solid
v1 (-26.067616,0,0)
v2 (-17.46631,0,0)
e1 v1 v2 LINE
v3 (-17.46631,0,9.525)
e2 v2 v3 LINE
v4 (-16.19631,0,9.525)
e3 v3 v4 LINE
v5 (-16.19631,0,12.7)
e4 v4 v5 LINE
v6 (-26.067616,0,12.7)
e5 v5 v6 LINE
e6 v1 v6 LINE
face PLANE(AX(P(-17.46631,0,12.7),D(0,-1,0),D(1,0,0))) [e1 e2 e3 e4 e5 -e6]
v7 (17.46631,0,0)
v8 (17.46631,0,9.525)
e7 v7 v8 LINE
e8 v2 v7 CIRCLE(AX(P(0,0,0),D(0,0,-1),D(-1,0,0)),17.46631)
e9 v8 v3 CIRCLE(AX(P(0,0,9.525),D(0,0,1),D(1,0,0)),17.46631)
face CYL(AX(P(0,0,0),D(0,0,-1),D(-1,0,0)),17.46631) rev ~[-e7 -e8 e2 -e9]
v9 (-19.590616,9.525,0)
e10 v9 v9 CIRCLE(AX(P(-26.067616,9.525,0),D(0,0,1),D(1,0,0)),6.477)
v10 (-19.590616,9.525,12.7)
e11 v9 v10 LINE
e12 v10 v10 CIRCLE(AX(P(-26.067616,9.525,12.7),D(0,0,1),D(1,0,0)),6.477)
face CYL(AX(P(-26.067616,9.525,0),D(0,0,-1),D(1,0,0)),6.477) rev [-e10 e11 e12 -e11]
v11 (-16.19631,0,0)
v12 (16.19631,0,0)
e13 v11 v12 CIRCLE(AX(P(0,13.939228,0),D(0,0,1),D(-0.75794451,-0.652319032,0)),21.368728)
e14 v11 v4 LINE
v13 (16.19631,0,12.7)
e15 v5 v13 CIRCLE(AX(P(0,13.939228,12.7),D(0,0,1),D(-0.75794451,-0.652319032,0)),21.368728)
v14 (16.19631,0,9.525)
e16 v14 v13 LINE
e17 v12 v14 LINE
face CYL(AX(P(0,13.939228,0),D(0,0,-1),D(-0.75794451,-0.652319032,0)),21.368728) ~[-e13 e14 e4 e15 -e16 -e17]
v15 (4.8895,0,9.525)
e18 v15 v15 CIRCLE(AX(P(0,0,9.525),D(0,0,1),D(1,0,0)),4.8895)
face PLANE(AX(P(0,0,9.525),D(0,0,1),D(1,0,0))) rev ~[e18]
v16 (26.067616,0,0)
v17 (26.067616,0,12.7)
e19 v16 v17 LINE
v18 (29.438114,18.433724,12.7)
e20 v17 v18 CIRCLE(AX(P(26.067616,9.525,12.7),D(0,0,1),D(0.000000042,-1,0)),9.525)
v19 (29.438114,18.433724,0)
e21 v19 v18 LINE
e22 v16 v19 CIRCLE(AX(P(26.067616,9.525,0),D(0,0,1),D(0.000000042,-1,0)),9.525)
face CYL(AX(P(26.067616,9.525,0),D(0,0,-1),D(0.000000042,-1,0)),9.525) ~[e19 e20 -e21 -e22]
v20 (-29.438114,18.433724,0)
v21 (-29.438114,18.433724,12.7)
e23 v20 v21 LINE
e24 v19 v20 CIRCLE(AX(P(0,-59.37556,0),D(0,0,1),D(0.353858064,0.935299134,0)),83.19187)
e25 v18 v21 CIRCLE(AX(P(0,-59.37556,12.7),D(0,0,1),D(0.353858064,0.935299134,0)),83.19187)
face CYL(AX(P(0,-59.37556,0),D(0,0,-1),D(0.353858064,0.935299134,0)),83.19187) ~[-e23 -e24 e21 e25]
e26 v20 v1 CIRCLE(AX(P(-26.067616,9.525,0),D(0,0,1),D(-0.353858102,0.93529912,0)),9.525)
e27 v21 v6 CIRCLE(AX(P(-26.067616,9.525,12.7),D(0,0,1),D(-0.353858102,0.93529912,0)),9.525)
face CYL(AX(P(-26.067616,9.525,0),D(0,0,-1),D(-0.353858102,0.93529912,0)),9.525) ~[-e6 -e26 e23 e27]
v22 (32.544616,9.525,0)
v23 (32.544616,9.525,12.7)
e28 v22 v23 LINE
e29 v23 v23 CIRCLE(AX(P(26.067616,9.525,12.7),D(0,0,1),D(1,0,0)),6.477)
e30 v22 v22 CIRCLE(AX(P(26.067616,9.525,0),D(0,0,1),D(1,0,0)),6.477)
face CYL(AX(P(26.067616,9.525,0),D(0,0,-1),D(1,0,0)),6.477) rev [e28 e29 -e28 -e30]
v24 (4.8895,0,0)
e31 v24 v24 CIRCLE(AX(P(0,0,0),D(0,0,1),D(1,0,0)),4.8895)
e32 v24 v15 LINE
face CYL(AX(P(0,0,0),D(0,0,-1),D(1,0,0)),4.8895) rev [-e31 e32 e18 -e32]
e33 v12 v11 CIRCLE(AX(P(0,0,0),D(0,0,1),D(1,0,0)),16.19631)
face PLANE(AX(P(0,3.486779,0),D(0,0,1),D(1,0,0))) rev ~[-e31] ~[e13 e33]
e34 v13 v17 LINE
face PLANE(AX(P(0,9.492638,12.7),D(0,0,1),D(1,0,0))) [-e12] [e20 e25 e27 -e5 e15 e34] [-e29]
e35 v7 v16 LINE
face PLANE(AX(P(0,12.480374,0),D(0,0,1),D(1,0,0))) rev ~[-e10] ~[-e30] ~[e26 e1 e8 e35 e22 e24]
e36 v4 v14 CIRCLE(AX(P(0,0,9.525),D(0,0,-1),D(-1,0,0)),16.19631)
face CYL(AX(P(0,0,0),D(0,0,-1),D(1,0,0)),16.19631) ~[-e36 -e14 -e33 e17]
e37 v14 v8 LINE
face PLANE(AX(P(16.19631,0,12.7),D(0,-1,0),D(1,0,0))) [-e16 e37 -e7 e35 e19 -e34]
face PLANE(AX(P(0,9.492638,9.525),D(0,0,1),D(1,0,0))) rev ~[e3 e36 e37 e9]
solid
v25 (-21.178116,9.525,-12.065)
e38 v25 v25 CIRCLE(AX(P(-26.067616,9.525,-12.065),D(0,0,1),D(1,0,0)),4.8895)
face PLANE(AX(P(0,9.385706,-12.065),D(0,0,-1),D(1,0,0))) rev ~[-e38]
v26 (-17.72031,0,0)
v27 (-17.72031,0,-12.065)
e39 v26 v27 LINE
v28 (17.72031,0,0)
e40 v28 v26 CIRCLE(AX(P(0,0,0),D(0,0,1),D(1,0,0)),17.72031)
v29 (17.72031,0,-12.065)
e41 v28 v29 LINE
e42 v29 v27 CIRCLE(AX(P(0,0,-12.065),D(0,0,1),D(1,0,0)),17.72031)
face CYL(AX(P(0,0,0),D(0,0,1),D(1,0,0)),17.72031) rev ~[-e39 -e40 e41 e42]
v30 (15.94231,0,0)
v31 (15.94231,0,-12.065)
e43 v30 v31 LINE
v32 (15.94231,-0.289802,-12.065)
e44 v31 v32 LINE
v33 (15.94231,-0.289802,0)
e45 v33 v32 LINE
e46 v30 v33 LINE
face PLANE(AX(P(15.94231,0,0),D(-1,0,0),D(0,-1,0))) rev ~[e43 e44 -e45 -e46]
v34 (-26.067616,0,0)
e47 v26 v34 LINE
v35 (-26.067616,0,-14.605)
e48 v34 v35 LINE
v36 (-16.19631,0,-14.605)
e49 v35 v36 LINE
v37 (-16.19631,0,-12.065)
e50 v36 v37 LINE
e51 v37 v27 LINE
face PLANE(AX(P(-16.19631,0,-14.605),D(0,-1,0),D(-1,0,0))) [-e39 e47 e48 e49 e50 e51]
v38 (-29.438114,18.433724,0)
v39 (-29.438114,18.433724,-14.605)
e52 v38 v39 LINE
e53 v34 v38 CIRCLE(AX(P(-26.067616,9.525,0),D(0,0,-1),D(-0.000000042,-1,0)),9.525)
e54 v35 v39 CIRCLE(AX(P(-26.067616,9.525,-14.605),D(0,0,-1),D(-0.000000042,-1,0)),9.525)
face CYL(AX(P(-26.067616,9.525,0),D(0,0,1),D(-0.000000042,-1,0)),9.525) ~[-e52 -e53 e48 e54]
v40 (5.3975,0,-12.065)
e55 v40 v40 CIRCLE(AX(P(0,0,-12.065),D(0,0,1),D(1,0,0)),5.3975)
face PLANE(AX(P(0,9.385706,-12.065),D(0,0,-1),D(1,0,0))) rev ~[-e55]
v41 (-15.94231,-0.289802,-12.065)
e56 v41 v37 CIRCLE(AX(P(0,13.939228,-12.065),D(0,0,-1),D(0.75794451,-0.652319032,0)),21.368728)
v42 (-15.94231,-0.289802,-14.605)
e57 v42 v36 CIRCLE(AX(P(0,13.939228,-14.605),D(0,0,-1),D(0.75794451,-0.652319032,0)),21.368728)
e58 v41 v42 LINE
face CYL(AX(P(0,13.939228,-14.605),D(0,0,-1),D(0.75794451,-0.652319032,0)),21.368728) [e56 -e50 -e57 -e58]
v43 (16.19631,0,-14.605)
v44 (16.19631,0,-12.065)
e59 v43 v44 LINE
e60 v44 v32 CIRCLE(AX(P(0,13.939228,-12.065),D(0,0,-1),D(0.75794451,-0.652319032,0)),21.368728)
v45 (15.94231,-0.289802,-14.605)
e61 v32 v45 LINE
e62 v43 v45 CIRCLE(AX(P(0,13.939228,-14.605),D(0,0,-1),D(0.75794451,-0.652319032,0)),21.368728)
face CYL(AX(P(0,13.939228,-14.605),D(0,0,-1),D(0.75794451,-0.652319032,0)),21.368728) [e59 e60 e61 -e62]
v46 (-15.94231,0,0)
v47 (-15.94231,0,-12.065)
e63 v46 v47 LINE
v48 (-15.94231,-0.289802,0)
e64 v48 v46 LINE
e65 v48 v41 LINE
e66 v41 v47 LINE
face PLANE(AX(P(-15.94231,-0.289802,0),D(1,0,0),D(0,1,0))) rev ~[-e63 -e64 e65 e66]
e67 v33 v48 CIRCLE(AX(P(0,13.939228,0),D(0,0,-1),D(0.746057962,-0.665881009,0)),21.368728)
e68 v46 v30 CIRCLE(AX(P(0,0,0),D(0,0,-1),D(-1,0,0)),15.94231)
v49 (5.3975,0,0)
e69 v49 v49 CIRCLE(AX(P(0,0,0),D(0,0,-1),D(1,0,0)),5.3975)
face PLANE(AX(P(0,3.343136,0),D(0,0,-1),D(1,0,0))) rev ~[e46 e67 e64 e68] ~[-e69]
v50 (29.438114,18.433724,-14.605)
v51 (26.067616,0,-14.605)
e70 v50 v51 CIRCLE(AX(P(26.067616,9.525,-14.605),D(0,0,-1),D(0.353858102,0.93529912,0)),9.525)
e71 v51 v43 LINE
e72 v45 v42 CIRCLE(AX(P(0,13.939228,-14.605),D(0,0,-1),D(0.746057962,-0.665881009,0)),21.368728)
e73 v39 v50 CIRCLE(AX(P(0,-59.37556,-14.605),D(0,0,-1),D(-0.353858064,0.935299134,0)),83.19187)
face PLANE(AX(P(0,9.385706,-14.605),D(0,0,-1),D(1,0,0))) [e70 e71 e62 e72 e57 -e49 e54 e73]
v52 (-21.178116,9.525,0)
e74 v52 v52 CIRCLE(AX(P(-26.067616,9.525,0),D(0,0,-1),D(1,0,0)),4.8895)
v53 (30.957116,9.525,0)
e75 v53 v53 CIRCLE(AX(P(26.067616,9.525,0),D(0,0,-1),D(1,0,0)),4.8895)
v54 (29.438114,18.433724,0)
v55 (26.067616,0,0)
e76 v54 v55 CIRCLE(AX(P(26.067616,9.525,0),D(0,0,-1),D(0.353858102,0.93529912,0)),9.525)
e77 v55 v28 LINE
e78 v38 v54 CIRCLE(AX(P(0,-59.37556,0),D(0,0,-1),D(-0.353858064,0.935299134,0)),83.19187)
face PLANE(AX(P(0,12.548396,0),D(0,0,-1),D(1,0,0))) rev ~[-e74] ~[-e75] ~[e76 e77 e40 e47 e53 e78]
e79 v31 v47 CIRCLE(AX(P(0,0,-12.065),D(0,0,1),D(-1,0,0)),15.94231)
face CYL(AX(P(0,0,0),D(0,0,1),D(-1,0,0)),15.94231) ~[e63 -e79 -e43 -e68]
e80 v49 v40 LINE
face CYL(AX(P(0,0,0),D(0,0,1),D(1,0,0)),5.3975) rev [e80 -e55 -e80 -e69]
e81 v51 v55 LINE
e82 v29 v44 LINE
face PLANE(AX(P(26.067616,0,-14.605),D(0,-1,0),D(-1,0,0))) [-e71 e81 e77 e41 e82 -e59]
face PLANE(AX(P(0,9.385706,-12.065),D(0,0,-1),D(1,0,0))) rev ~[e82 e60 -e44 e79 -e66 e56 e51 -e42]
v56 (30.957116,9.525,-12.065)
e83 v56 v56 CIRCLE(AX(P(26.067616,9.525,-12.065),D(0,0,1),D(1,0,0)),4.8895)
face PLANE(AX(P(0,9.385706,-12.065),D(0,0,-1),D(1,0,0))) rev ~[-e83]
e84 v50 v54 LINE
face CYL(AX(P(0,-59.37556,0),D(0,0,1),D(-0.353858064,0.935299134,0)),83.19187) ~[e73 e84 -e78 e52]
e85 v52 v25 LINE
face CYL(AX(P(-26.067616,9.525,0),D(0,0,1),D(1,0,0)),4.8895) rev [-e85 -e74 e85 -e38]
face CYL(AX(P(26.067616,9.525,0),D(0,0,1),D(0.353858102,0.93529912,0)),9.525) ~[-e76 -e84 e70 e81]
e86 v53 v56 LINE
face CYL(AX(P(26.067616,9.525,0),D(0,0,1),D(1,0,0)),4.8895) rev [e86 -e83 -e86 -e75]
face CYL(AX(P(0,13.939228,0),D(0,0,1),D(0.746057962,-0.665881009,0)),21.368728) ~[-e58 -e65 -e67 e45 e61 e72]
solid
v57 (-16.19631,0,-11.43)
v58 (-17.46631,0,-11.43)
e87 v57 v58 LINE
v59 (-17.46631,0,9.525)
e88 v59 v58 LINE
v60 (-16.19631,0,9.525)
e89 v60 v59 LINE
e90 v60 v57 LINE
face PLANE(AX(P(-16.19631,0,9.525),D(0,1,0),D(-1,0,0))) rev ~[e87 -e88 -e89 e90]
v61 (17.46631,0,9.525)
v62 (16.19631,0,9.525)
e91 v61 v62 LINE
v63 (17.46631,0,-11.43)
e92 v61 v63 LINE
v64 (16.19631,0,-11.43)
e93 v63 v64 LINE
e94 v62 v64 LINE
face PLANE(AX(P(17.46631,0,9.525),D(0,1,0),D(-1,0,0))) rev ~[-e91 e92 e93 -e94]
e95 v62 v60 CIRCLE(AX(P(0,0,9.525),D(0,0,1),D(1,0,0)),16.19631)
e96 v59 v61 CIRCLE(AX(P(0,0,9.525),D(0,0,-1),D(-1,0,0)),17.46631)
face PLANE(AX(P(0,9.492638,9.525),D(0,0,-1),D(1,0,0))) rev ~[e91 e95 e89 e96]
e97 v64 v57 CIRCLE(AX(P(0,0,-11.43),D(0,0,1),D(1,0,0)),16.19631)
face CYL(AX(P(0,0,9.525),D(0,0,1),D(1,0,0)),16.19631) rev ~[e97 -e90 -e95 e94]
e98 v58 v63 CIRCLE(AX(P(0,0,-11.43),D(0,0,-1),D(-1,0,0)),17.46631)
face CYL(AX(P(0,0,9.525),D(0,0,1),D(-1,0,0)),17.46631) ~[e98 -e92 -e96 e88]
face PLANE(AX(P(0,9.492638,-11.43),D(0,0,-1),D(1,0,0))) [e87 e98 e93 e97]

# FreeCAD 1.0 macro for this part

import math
import FreeCAD as App
import Part
import Sketcher
from FreeCAD import Vector
Q = App.Units.Quantity

doc = App.newDocument("Part")
body = doc.addObject("PartDesign::Body", "Body")
body.AllowCompound = True

# Sketch on XY plane
sketch1 = body.newObject("Sketcher::SketchObject", "Sketch")
sketch1.AttachmentSupport = (doc.getObject("XY_Plane"), [""])
sketch1.MapMode = "FlatFace"
sketch1.addGeometry(Part.ArcOfCircle(Part.Circle(Vector(0, 0, 0), Vector(0, 0, 1), 17.5), math.radians(0), math.radians(180)), False)
sketch1.addGeometry(Part.LineSegment(Vector(17.5, 0, 0), Vector(26.1, 0, 0)), False)
sketch1.addGeometry(Part.ArcOfCircle(Part.Circle(Vector(26.1, 9.5, 0), Vector(0, 0, 1), 9.5), math.radians(-90), math.radians(69)), False)
sketch1.addGeometry(Part.ArcOfCircle(Part.Circle(Vector(0, -59.4, 0), Vector(0, 0, 1), 83.2), math.radians(69), math.radians(111)), False)
sketch1.addGeometry(Part.ArcOfCircle(Part.Circle(Vector(-26.1, 9.5, 0), Vector(0, 0, 1), 9.5), math.radians(111), math.radians(270)), False)
sketch1.addGeometry(Part.LineSegment(Vector(-26.1, 0, 0), Vector(-17.5, 0, 0)), False)
sketch1.addGeometry(Part.Circle(Vector(-26.1, 9.5, 0), Vector(0, 0, 1), 6.5), False)
sketch1.addGeometry(Part.Circle(Vector(26.1, 9.5, 0), Vector(0, 0, 1), 6.5), False)
sketch1.addGeometry(Part.ArcOfCircle(Part.Circle(Vector(0, 13.9, 0), Vector(0, 0, 1), 21.4), math.radians(-139), math.radians(-41)), False)
sketch1.addGeometry(Part.ArcOfCircle(Part.Circle(Vector(0, 0, 0), Vector(0, 0, 1), 16.2), math.radians(0), math.radians(180)), False)
sketch1.addGeometry(Part.Circle(Vector(0, 0, 0), Vector(0, 0, 1), 4.9), False)
sketch1.addConstraint(Sketcher.Constraint("Coincident", 0, 1, 1, 1))
sketch1.addConstraint(Sketcher.Constraint("Tangent", 1, 2, 2, 1))
sketch1.addConstraint(Sketcher.Constraint("Tangent", 2, 2, 3, 1))
sketch1.addConstraint(Sketcher.Constraint("Tangent", 3, 2, 4, 1))
sketch1.addConstraint(Sketcher.Constraint("Tangent", 4, 2, 5, 1))
sketch1.addConstraint(Sketcher.Constraint("Coincident", 5, 2, 0, 2))
sketch1.addConstraint(Sketcher.Constraint("Coincident", 8, 1, 9, 2))
sketch1.addConstraint(Sketcher.Constraint("Coincident", 9, 1, 8, 2))
sketch1.addConstraint(Sketcher.Constraint("Horizontal", 1))
sketch1.addConstraint(Sketcher.Constraint("Horizontal", 5))
sketch1.addConstraint(Sketcher.Constraint("Coincident", 0, 3, -1, 1))
sketch1.addConstraint(Sketcher.Constraint("Coincident", 9, 3, -1, 1))
sketch1.addConstraint(Sketcher.Constraint("Coincident", 10, 3, -1, 1))
sketch1.addConstraint(Sketcher.Constraint("Coincident", 6, 3, 4, 3))
sketch1.addConstraint(Sketcher.Constraint("Coincident", 7, 3, 2, 3))
sketch1.addConstraint(Sketcher.Constraint("Equal", 2, 4))
sketch1.addConstraint(Sketcher.Constraint("Equal", 6, 7))
sketch1.addConstraint(Sketcher.Constraint("Symmetric", 1, 2, 4, 2, -1, 1))
sketch1.addConstraint(Sketcher.Constraint("PointOnObject", 3, 3, -2))
sketch1.addConstraint(Sketcher.Constraint("PointOnObject", 8, 3, -2))
sketch1.addConstraint(Sketcher.Constraint("PointOnObject", 8, 1, -1))
sketch1.addConstraint(Sketcher.Constraint("Diameter", 6, Q("0.51 in")))
sketch1.addConstraint(Sketcher.Constraint("Diameter", 10, Q("0.385 in")))
sketch1.addConstraint(Sketcher.Constraint("Radius", 2, Q("0.375 in")))
sketch1.addConstraint(Sketcher.Constraint("DistanceX", 5, 2, 8, 1, Q("0.05 in")))
sketch1.addConstraint(Sketcher.Constraint("Radius", 0, Q("17.46631 mm")))
sketch1.addConstraint(Sketcher.Constraint("Radius", 3, Q("83.19187 mm")))
sketch1.addConstraint(Sketcher.Constraint("Radius", 8, Q("21.368728 mm")))
sketch1.addConstraint(Sketcher.Constraint("DistanceX", 2, 3, 2, 2, Q("3.370498 mm")))
pad1 = body.newObject("PartDesign::Pad", "Pad")
pad1.Profile = sketch1
pad1.Length = Q("0.5 in")

# Sketch on XY plane
sketch2 = body.newObject("Sketcher::SketchObject", "Sketch001")
sketch2.AttachmentSupport = (doc.getObject("XY_Plane"), [""])
sketch2.MapMode = "FlatFace"
sketch2.AttachmentOffset = App.Placement(Vector(0, 0, 0.5 * 25.4), App.Rotation())
sketch2.addGeometry(Part.ArcOfCircle(Part.Circle(Vector(0, 0, 0), Vector(0, 0, 1), 17.5), math.radians(0), math.radians(180)), False)
sketch2.addGeometry(Part.LineSegment(Vector(-17.5, 0, 0), Vector(-16.2, 0, 0)), False)
sketch2.addGeometry(Part.ArcOfCircle(Part.Circle(Vector(0, 0, 0), Vector(0, 0, 1), 16.2), math.radians(0), math.radians(180)), False)
sketch2.addGeometry(Part.LineSegment(Vector(16.2, 0, 0), Vector(17.5, 0, 0)), False)
sketch2.addGeometry(Part.Circle(Vector(0, 0, 0), Vector(0, 0, 1), 4.9), False)
sketch2.addConstraint(Sketcher.Constraint("Coincident", 0, 2, 1, 1))
sketch2.addConstraint(Sketcher.Constraint("Coincident", 1, 2, 2, 2))
sketch2.addConstraint(Sketcher.Constraint("Coincident", 2, 1, 3, 1))
sketch2.addConstraint(Sketcher.Constraint("Coincident", 3, 2, 0, 1))
sketch2.addConstraint(Sketcher.Constraint("Horizontal", 1))
sketch2.addConstraint(Sketcher.Constraint("Horizontal", 3))
sketch2.addConstraint(Sketcher.Constraint("Coincident", 0, 3, -1, 1))
sketch2.addConstraint(Sketcher.Constraint("Coincident", 2, 3, -1, 1))
sketch2.addConstraint(Sketcher.Constraint("Coincident", 4, 3, -1, 1))
sketch2.addConstraint(Sketcher.Constraint("PointOnObject", 0, 2, -1))
sketch2.addConstraint(Sketcher.Constraint("PointOnObject", 2, 1, -1))
sketch2.addConstraint(Sketcher.Constraint("Diameter", 4, Q("0.385 in")))
sketch2.addConstraint(Sketcher.Constraint("DistanceX", 1, 1, 1, 2, Q("0.05 in")))
sketch2.addConstraint(Sketcher.Constraint("Radius", 0, Q("17.46631 mm")))
pad2 = body.newObject("PartDesign::Pad", "Pad001")
pad2.Profile = sketch2
pad2.Length = Q("0.125 in")
pad2.Reversed = True
body2 = doc.addObject("PartDesign::Body", "Body001")

# Sketch on XY plane
sketch3 = body2.newObject("Sketcher::SketchObject", "Sketch002")
sketch3.AttachmentSupport = (doc.getObject("XY_Plane001"), [""])
sketch3.MapMode = "FlatFace"
sketch3.AttachmentOffset = App.Placement(Vector(0, 0, 0.375 * 25.4), App.Rotation())
sketch3.addGeometry(Part.ArcOfCircle(Part.Circle(Vector(0, 0, 0), Vector(0, 0, 1), 17.5), math.radians(0), math.radians(180)), False)
sketch3.addGeometry(Part.LineSegment(Vector(17.5, 0, 0), Vector(16.2, 0, 0)), False)
sketch3.addGeometry(Part.ArcOfCircle(Part.Circle(Vector(0, 0, 0), Vector(0, 0, 1), 16.2), math.radians(0), math.radians(180)), False)
sketch3.addGeometry(Part.LineSegment(Vector(-16.2, 0, 0), Vector(-17.5, 0, 0)), False)
sketch3.addConstraint(Sketcher.Constraint("Coincident", 0, 1, 1, 1))
sketch3.addConstraint(Sketcher.Constraint("Coincident", 1, 2, 2, 1))
sketch3.addConstraint(Sketcher.Constraint("Coincident", 2, 2, 3, 1))
sketch3.addConstraint(Sketcher.Constraint("Coincident", 3, 2, 0, 2))
sketch3.addConstraint(Sketcher.Constraint("Horizontal", 1))
sketch3.addConstraint(Sketcher.Constraint("Horizontal", 3))
sketch3.addConstraint(Sketcher.Constraint("Coincident", 0, 3, -1, 1))
sketch3.addConstraint(Sketcher.Constraint("Coincident", 2, 3, -1, 1))
sketch3.addConstraint(Sketcher.Constraint("PointOnObject", 0, 1, -1))
sketch3.addConstraint(Sketcher.Constraint("PointOnObject", 2, 2, -1))
sketch3.addConstraint(Sketcher.Constraint("DistanceX", 1, 2, 1, 1, Q("0.05 in")))
sketch3.addConstraint(Sketcher.Constraint("Radius", 0, Q("17.46631 mm")))
pad3 = body2.newObject("PartDesign::Pad", "Pad002")
pad3.Profile = sketch3
pad3.Length = Q("0.825 in")
pad3.Reversed = True
body3 = doc.addObject("PartDesign::Body", "Body002")
body3.AllowCompound = True

# Sketch on XY plane
sketch4 = body3.newObject("Sketcher::SketchObject", "Sketch003")
sketch4.AttachmentSupport = (doc.getObject("XY_Plane002"), [""])
sketch4.MapMode = "FlatFace"
sketch4.addGeometry(Part.ArcOfCircle(Part.Circle(Vector(26.07, 9.52, 0), Vector(0, 0, 1), 9.52), math.radians(-90), math.radians(69)), False)
sketch4.addGeometry(Part.LineSegment(Vector(26.07, 0, 0), Vector(17.72, 0, 0)), False)
sketch4.addGeometry(Part.ArcOfCircle(Part.Circle(Vector(0, 0, 0), Vector(0, 0, 1), 17.72), math.radians(0), math.radians(180)), False)
sketch4.addGeometry(Part.LineSegment(Vector(-17.72, 0, 0), Vector(-26.07, 0, 0)), False)
sketch4.addGeometry(Part.ArcOfCircle(Part.Circle(Vector(-26.07, 9.52, 0), Vector(0, 0, 1), 9.52), math.radians(111), math.radians(270)), False)
sketch4.addGeometry(Part.ArcOfCircle(Part.Circle(Vector(0, -59.38, 0), Vector(0, 0, 1), 83.19), math.radians(69), math.radians(111)), False)
sketch4.addGeometry(Part.Circle(Vector(-26.07, 9.53, 0), Vector(0, 0, 1), 4.89), False)
sketch4.addGeometry(Part.Circle(Vector(26.07, 9.53, 0), Vector(0, 0, 1), 4.89), False)
sketch4.addGeometry(Part.LineSegment(Vector(15.94, 0, 0), Vector(15.94, -0.29, 0)), False)
sketch4.addGeometry(Part.ArcOfCircle(Part.Circle(Vector(0, 13.94, 0), Vector(0, 0, 1), 21.37), math.radians(-138), math.radians(-42)), False)
sketch4.addGeometry(Part.LineSegment(Vector(-15.94, -0.29, 0), Vector(-15.94, 0, 0)), False)
sketch4.addGeometry(Part.ArcOfCircle(Part.Circle(Vector(0, 0, 0), Vector(0, 0, 1), 15.94), math.radians(0), math.radians(180)), False)
sketch4.addGeometry(Part.Circle(Vector(0, 0, 0), Vector(0, 0, 1), 5.4), False)
sketch4.addConstraint(Sketcher.Constraint("Tangent", 0, 1, 1, 1))
sketch4.addConstraint(Sketcher.Constraint("Coincident", 1, 2, 2, 1))
sketch4.addConstraint(Sketcher.Constraint("Coincident", 2, 2, 3, 1))
sketch4.addConstraint(Sketcher.Constraint("Tangent", 3, 2, 4, 2))
sketch4.addConstraint(Sketcher.Constraint("Tangent", 4, 1, 5, 2))
sketch4.addConstraint(Sketcher.Constraint("Tangent", 5, 1, 0, 2))
sketch4.addConstraint(Sketcher.Constraint("Coincident", 8, 2, 9, 2))
sketch4.addConstraint(Sketcher.Constraint("Coincident", 9, 1, 10, 1))
sketch4.addConstraint(Sketcher.Constraint("Tangent", 10, 2, 11, 2))
sketch4.addConstraint(Sketcher.Constraint("Tangent", 11, 1, 8, 1))
sketch4.addConstraint(Sketcher.Constraint("Horizontal", 1))
sketch4.addConstraint(Sketcher.Constraint("Horizontal", 3))
sketch4.addConstraint(Sketcher.Constraint("Vertical", 8))
sketch4.addConstraint(Sketcher.Constraint("Vertical", 10))
sketch4.addConstraint(Sketcher.Constraint("Coincident", 2, 3, -1, 1))
sketch4.addConstraint(Sketcher.Constraint("Coincident", 11, 3, -1, 1))
sketch4.addConstraint(Sketcher.Constraint("Coincident", 12, 3, -1, 1))
sketch4.addConstraint(Sketcher.Constraint("Coincident", 6, 3, 4, 3))
sketch4.addConstraint(Sketcher.Constraint("Coincident", 7, 3, 0, 3))
sketch4.addConstraint(Sketcher.Constraint("Equal", 0, 4))
sketch4.addConstraint(Sketcher.Constraint("Equal", 6, 7))
sketch4.addConstraint(Sketcher.Constraint("Symmetric", 0, 1, 3, 2, -1, 1))
sketch4.addConstraint(Sketcher.Constraint("PointOnObject", 5, 3, -2))
sketch4.addConstraint(Sketcher.Constraint("PointOnObject", 9, 3, -2))
sketch4.addConstraint(Sketcher.Constraint("Diameter", 6, Q("0.385 in")))
sketch4.addConstraint(Sketcher.Constraint("Diameter", 12, Q("0.425 in")))
sketch4.addConstraint(Sketcher.Constraint("Radius", 0, Q("0.375 in")))
sketch4.addConstraint(Sketcher.Constraint("DistanceX", 8, 2, 1, 2, Q("0.07 in")))
sketch4.addConstraint(Sketcher.Constraint("Radius", 2, Q("17.72031 mm")))
sketch4.addConstraint(Sketcher.Constraint("Radius", 5, Q("83.19187 mm")))
sketch4.addConstraint(Sketcher.Constraint("Radius", 9, Q("21.368728 mm")))
sketch4.addConstraint(Sketcher.Constraint("DistanceX", 4, 1, 4, 3, Q("3.370498 mm")))
sketch4.addConstraint(Sketcher.Constraint("DistanceY", 8, 2, 0, 3, Q("9.814802 mm")))
pad4 = body3.newObject("PartDesign::Pad", "Pad003")
pad4.Profile = sketch4
pad4.Length = Q("0.575 in")
pad4.Reversed = True

# Sketch on XY plane
sketch5 = body3.newObject("Sketcher::SketchObject", "Sketch004")
sketch5.AttachmentSupport = (doc.getObject("XY_Plane002"), [""])
sketch5.MapMode = "FlatFace"
sketch5.AttachmentOffset = App.Placement(Vector(0, 0, -0.575 * 25.4), App.Rotation())
sketch5.addGeometry(Part.LineSegment(Vector(-16, 0, 0), Vector(-26, 0, 0)), False)
sketch5.addGeometry(Part.ArcOfCircle(Part.Circle(Vector(-26, 10, 0), Vector(0, 0, 1), 10), math.radians(111), math.radians(270)), False)
sketch5.addGeometry(Part.ArcOfCircle(Part.Circle(Vector(0, -59, 0), Vector(0, 0, 1), 83), math.radians(69), math.radians(111)), False)
sketch5.addGeometry(Part.ArcOfCircle(Part.Circle(Vector(26, 10, 0), Vector(0, 0, 1), 10), math.radians(-90), math.radians(69)), False)
sketch5.addGeometry(Part.LineSegment(Vector(26, 0, 0), Vector(16, 0, 0)), False)
sketch5.addGeometry(Part.ArcOfCircle(Part.Circle(Vector(0, 14, 0), Vector(0, 0, 1), 21), math.radians(-139), math.radians(-41)), False)
sketch5.addConstraint(Sketcher.Constraint("Tangent", 0, 2, 1, 2))
sketch5.addConstraint(Sketcher.Constraint("Tangent", 1, 1, 2, 2))
sketch5.addConstraint(Sketcher.Constraint("Tangent", 2, 1, 3, 2))
sketch5.addConstraint(Sketcher.Constraint("Tangent", 3, 1, 4, 1))
sketch5.addConstraint(Sketcher.Constraint("Coincident", 4, 2, 5, 2))
sketch5.addConstraint(Sketcher.Constraint("Coincident", 5, 1, 0, 1))
sketch5.addConstraint(Sketcher.Constraint("Horizontal", 0))
sketch5.addConstraint(Sketcher.Constraint("Horizontal", 4))
sketch5.addConstraint(Sketcher.Constraint("Equal", 1, 3))
sketch5.addConstraint(Sketcher.Constraint("Symmetric", 0, 2, 3, 1, -1, 1))
sketch5.addConstraint(Sketcher.Constraint("Symmetric", 4, 2, 5, 1, -2))
sketch5.addConstraint(Sketcher.Constraint("Radius", 1, Q("0.375 in")))
sketch5.addConstraint(Sketcher.Constraint("Radius", 2, Q("83.19187 mm")))
sketch5.addConstraint(Sketcher.Constraint("Radius", 5, Q("21.368728 mm")))
sketch5.addConstraint(Sketcher.Constraint("DistanceX", 5, 1, 4, 2, Q("1.2753 in")))
sketch5.addConstraint(Sketcher.Constraint("DistanceX", 1, 1, 1, 3, Q("3.370498 mm")))
pad5 = body3.newObject("PartDesign::Pad", "Pad004")
pad5.Profile = sketch5
pad5.Length = Q("0.1 in")

doc.recompute()
